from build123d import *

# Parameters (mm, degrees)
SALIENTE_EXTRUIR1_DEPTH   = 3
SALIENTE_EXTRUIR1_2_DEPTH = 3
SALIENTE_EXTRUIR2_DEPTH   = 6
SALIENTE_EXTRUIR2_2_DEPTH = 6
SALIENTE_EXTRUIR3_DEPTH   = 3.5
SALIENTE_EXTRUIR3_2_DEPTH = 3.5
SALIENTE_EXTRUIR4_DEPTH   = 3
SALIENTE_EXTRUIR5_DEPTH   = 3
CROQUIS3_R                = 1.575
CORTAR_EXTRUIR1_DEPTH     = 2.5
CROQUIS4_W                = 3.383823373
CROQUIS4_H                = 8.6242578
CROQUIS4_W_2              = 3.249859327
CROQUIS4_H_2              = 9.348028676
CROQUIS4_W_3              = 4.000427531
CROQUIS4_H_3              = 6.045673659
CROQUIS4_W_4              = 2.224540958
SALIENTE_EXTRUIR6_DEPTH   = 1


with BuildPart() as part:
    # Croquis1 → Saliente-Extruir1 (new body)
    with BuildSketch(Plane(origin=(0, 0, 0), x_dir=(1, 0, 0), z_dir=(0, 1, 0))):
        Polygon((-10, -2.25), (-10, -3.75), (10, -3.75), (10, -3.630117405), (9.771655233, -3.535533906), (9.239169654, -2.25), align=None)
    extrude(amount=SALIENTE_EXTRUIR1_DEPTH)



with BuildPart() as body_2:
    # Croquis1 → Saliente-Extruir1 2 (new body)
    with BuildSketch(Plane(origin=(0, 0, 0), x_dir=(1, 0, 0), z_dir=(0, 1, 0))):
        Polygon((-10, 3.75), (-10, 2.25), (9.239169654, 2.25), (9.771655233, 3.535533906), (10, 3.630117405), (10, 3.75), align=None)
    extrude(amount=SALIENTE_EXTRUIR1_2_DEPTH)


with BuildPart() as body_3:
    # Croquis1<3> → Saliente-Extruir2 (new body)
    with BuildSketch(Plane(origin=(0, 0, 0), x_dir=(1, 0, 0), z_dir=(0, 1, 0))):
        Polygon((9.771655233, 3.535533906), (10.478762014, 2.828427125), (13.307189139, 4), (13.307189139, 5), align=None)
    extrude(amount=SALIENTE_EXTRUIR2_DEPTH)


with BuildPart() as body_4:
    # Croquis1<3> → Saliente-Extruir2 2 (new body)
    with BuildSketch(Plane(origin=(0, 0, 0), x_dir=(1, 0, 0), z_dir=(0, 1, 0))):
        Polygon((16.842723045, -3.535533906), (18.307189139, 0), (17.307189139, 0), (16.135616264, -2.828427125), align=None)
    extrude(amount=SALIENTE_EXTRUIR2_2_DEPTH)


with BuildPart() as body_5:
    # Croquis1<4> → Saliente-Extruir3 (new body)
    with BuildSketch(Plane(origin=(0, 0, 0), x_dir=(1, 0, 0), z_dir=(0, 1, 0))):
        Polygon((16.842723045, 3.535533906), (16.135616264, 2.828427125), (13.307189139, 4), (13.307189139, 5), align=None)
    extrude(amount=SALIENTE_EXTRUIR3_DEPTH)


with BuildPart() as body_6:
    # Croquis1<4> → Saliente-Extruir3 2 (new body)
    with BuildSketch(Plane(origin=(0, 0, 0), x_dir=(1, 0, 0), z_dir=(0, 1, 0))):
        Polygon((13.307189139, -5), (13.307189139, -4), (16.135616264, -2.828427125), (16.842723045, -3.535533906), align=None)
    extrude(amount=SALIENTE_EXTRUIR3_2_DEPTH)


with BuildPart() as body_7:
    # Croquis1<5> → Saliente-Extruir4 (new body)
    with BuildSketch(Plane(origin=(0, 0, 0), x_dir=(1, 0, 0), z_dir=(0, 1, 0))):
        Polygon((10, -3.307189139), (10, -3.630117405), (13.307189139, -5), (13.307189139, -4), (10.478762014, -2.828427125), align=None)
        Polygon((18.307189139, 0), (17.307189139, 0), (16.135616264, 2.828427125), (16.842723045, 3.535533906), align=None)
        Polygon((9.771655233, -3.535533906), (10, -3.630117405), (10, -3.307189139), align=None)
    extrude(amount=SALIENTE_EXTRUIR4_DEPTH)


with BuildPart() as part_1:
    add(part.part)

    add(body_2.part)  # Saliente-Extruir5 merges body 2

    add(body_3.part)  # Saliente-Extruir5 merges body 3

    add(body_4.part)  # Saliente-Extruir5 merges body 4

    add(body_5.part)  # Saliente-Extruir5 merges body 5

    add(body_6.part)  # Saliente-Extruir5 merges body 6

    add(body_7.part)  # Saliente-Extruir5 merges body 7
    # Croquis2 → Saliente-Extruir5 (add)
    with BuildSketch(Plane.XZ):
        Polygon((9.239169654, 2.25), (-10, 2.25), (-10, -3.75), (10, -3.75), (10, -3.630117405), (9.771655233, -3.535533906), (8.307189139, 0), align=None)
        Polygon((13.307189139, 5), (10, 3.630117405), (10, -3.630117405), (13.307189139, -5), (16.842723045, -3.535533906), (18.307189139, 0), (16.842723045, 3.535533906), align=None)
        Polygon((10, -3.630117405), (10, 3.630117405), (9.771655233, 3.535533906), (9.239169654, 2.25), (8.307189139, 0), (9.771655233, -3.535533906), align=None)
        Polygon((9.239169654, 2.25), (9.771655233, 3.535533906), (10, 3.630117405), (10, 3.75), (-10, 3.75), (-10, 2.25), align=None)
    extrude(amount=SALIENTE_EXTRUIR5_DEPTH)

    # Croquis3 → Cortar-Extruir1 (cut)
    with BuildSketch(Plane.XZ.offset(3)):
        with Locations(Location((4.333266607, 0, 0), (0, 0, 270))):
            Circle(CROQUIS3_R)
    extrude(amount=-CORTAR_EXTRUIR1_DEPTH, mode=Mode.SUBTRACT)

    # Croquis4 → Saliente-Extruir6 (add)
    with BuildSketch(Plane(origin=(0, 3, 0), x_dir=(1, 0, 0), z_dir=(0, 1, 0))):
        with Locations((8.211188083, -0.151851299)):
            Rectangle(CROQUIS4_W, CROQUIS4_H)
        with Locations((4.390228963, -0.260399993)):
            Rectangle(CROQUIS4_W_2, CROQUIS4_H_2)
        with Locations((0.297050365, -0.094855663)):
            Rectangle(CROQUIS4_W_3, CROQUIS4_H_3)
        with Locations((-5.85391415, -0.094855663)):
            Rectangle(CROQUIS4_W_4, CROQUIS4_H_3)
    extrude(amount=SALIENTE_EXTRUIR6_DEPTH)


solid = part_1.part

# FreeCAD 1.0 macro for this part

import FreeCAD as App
import Part
import Sketcher
from FreeCAD import Vector
Q = App.Units.Quantity


def add_polygon(sketch, points):
    """Adds a closed chain of lines whose ends are joined by coincident constraints."""
    first, n = sketch.GeometryCount, len(points)
    for a, b in zip(points, points[1:] + points[:1]):
        sketch.addGeometry(Part.LineSegment(App.Vector(*a, 0), App.Vector(*b, 0)), False)
    for i in range(n):
        sketch.addConstraint(Sketcher.Constraint("Coincident", first + i, 2, first + (i + 1) % n, 1))

doc = App.newDocument("Part")
body = doc.addObject("PartDesign::Body", "Body")

sketch1 = body.newObject("Sketcher::SketchObject", "Sketch")
sketch1.AttachmentSupport = (doc.getObject("XZ_Plane"), [""])
sketch1.MapMode = "FlatFace"
add_polygon(sketch1, [(-10, 2.25), (-10, 3.75), (10, 3.75), (10, 3.63), (9.77, 3.54), (9.24, 2.25)])
sketch1.addConstraint([
    Sketcher.Constraint("Vertical", 0),
    Sketcher.Constraint("Horizontal", 1),
    Sketcher.Constraint("Vertical", 2),
    Sketcher.Constraint("Horizontal", 5),
    Sketcher.Constraint("DistanceX", 1, 1, 1, 2, Q("20 mm")),
    Sketcher.Constraint("DistanceY", 0, 1, 0, 2, Q("1.5 mm")),
    Sketcher.Constraint("DistanceX", 0, 2, -1, 1, Q("10 mm")),
    Sketcher.Constraint("Angle", 3, Q("-157.5 deg")),
    Sketcher.Constraint("Angle", 4, Q("-112.5 deg")),
    Sketcher.Constraint("DistanceY", -1, 1, 0, 2, Q("3.75 mm")),
    Sketcher.Constraint("DistanceX", 5, 2, 5, 1, Q("19.23917 mm")),
    Sketcher.Constraint("Distance", 3, Q("0.247159 mm")),
])
pad1 = body.newObject("PartDesign::Pad", "Pad")
pad1.Profile = sketch1
pad1.Length = 3
pad1.Reversed = True
body2 = doc.addObject("PartDesign::Body", "Body001")

sketch2 = body2.newObject("Sketcher::SketchObject", "Sketch001")
sketch2.AttachmentSupport = (doc.getObject("XZ_Plane001"), [""])
sketch2.MapMode = "FlatFace"
add_polygon(sketch2, [(-10, -3.75), (-10, -2.25), (9.24, -2.25), (9.77, -3.54), (10, -3.63), (10, -3.75)])
sketch2.addConstraint([
    Sketcher.Constraint("Vertical", 0),
    Sketcher.Constraint("Horizontal", 1),
    Sketcher.Constraint("Vertical", 4),
    Sketcher.Constraint("Horizontal", 5),
    Sketcher.Constraint("DistanceX", 5, 2, 5, 1, Q("20 mm")),
    Sketcher.Constraint("DistanceY", 0, 1, 0, 2, Q("1.5 mm")),
    Sketcher.Constraint("DistanceX", 0, 2, -1, 1, Q("10 mm")),
    Sketcher.Constraint("Angle", 2, Q("-67.5 deg")),
    Sketcher.Constraint("Angle", 3, Q("-22.5 deg")),
    Sketcher.Constraint("DistanceY", 0, 2, -1, 1, Q("2.25 mm")),
    Sketcher.Constraint("DistanceX", 1, 1, 1, 2, Q("19.23917 mm")),
    Sketcher.Constraint("Distance", 2, Q("1.391452 mm")),
])
pad2 = body2.newObject("PartDesign::Pad", "Pad001")
pad2.Profile = sketch2
pad2.Length = 3
pad2.Reversed = True
body3 = doc.addObject("PartDesign::Body", "Body002")

sketch3 = body3.newObject("Sketcher::SketchObject", "Sketch002")
sketch3.AttachmentSupport = (doc.getObject("XZ_Plane002"), [""])
sketch3.MapMode = "FlatFace"
add_polygon(sketch3, [(9.8, -3.5), (10.5, -2.8), (13.3, -4), (13.3, -5)])
sketch3.addConstraint([
    Sketcher.Constraint("Vertical", 2),
    Sketcher.Constraint("Parallel", 1, 3),
    Sketcher.Constraint("DistanceY", 2, 2, 2, 1, Q("1 mm")),
    Sketcher.Constraint("Angle", 0, Q("45 deg")),
    Sketcher.Constraint("Distance", 0, Q("1 mm")),
    Sketcher.Constraint("DistanceY", 1, 2, -1, 1, Q("4 mm")),
    Sketcher.Constraint("DistanceX", -1, 1, 1, 2, Q("13.307189 mm")),
    Sketcher.Constraint("Distance", 1, Q("3.061467 mm")),
])
pad3 = body3.newObject("PartDesign::Pad", "Pad002")
pad3.Profile = sketch3
pad3.Length = 6
pad3.Reversed = True
body4 = doc.addObject("PartDesign::Body", "Body003")

sketch4 = body4.newObject("Sketcher::SketchObject", "Sketch003")
sketch4.AttachmentSupport = (doc.getObject("XZ_Plane003"), [""])
sketch4.MapMode = "FlatFace"
add_polygon(sketch4, [(16.8, 3.5), (18.3, 0), (17.3, 0), (16.1, 2.8)])
sketch4.addConstraint([
    Sketcher.Constraint("Horizontal", 1),
    Sketcher.Constraint("PointOnObject", 0, 2, -1),
    Sketcher.Constraint("Parallel", 0, 2),
    Sketcher.Constraint("DistanceX", 1, 2, 1, 1, Q("1 mm")),
    Sketcher.Constraint("Angle", 3, Q("45 deg")),
    Sketcher.Constraint("Distance", 3, Q("1 mm")),
    Sketcher.Constraint("DistanceX", -1, 1, 0, 2, Q("18.307189 mm")),
    Sketcher.Constraint("Distance", 0, Q("3.826834 mm")),
])
pad4 = body4.newObject("PartDesign::Pad", "Pad003")
pad4.Profile = sketch4
pad4.Length = 6
pad4.Reversed = True
body5 = doc.addObject("PartDesign::Body", "Body004")

sketch5 = body5.newObject("Sketcher::SketchObject", "Sketch004")
sketch5.AttachmentSupport = (doc.getObject("XZ_Plane004"), [""])
sketch5.MapMode = "FlatFace"
add_polygon(sketch5, [(16.1, -2.8), (16.8, -3.5), (13.3, -5), (13.3, -4)])
sketch5.addConstraint([
    Sketcher.Constraint("Vertical", 2),
    Sketcher.Constraint("Parallel", 1, 3),
    Sketcher.Constraint("DistanceY", 2, 1, 2, 2, Q("1 mm")),
    Sketcher.Constraint("Angle", 0, Q("-45 deg")),
    Sketcher.Constraint("Distance", 0, Q("1 mm")),
    Sketcher.Constraint("DistanceY", 1, 2, -1, 1, Q("5 mm")),
    Sketcher.Constraint("DistanceX", -1, 1, 1, 2, Q("13.307189 mm")),
    Sketcher.Constraint("Distance", 1, Q("3.826834 mm")),
])
pad5 = body5.newObject("PartDesign::Pad", "Pad004")
pad5.Profile = sketch5
pad5.Length = 3.5
pad5.Reversed = True
body6 = doc.addObject("PartDesign::Body", "Body005")

sketch6 = body6.newObject("Sketcher::SketchObject", "Sketch005")
sketch6.AttachmentSupport = (doc.getObject("XZ_Plane005"), [""])
sketch6.MapMode = "FlatFace"
add_polygon(sketch6, [(13.3, 4), (13.3, 5), (16.8, 3.5), (16.1, 2.8)])
sketch6.addConstraint([
    Sketcher.Constraint("Vertical", 0),
    Sketcher.Constraint("Parallel", 1, 3),
    Sketcher.Constraint("DistanceY", 0, 1, 0, 2, Q("1 mm")),
    Sketcher.Constraint("Angle", 2, Q("-135 deg")),
    Sketcher.Constraint("Distance", 2, Q("1 mm")),
    Sketcher.Constraint("DistanceY", -1, 1, 0, 2, Q("5 mm")),
    Sketcher.Constraint("DistanceX", -1, 1, 0, 2, Q("13.307189 mm")),
    Sketcher.Constraint("Distance", 1, Q("3.826834 mm")),
])
pad6 = body6.newObject("PartDesign::Pad", "Pad005")
pad6.Profile = sketch6
pad6.Length = 3.5
pad6.Reversed = True
body7 = doc.addObject("PartDesign::Body", "Body006")
body7.AllowCompound = True

sketch7 = body7.newObject("Sketcher::SketchObject", "Sketch006")
sketch7.AttachmentSupport = (doc.getObject("XZ_Plane006"), [""])
sketch7.MapMode = "FlatFace"
add_polygon(sketch7, [(10, 3.63), (13.31, 5), (13.31, 4), (10.48, 2.83), (9.77, 3.54)])
add_polygon(sketch7, [(17.31, 0), (18.31, 0), (16.84, -3.54), (16.14, -2.83)])
sketch7.addConstraint([
    Sketcher.Constraint("Vertical", 1),
    Sketcher.Constraint("Horizontal", 5),
    Sketcher.Constraint("PointOnObject", 5, 2, -1),
    Sketcher.Constraint("Parallel", 0, 2),
    Sketcher.Constraint("Parallel", 2, 4),
    Sketcher.Constraint("Parallel", 3, 7),
    Sketcher.Constraint("Parallel", 6, 8),
    Sketcher.Constraint("Equal", 5, 1),
    Sketcher.Constraint("Equal", 3, 7),
    Sketcher.Constraint("Equal", 2, 8),
    Sketcher.Constraint("DistanceX", 5, 1, 5, 2, Q("1 mm")),
    Sketcher.Constraint("Angle", 3, Q("135 deg")),
    Sketcher.Constraint("Distance", 3, Q("1 mm")),
    Sketcher.Constraint("DistanceY", -1, 1, 0, 2, Q("5 mm")),
    Sketcher.Constraint("DistanceX", -1, 1, 4, 2, Q("10 mm")),
    Sketcher.Constraint("DistanceX", 1, 2, 5, 2, Q("5 mm")),
    Sketcher.Constraint("Distance", 4, Q("0.247159 mm")),
    Sketcher.Constraint("DistanceX", -1, 1, 0, 2, Q("13.307189 mm")),
])
pad7 = body7.newObject("PartDesign::Pad", "Pad006")
pad7.Profile = sketch7
pad7.Length = 3
pad7.Reversed = True
body.AllowCompound = True
doc.recompute()

boolean = body.newObject("PartDesign::Boolean", "Boolean")
boolean.Type = "Fuse"
boolean.addObjects([body2])
doc.recompute()

boolean2 = body.newObject("PartDesign::Boolean", "Boolean001")
boolean2.Type = "Fuse"
boolean2.addObjects([body3])
doc.recompute()

boolean3 = body.newObject("PartDesign::Boolean", "Boolean002")
boolean3.Type = "Fuse"
boolean3.addObjects([body4])
doc.recompute()

boolean4 = body.newObject("PartDesign::Boolean", "Boolean003")
boolean4.Type = "Fuse"
boolean4.addObjects([body5])
doc.recompute()

boolean5 = body.newObject("PartDesign::Boolean", "Boolean004")
boolean5.Type = "Fuse"
boolean5.addObjects([body6])
doc.recompute()

boolean6 = body.newObject("PartDesign::Boolean", "Boolean005")
boolean6.Type = "Fuse"
boolean6.addObjects([body7])

sketch8 = body.newObject("Sketcher::SketchObject", "Sketch007")
sketch8.AttachmentSupport = (doc.getObject("XZ_Plane"), [""])
sketch8.MapMode = "FlatFace"
add_polygon(sketch8, [(-10, -3.75), (10, -3.75), (10, -3.63), (13.31, -5), (16.84, -3.54), (18.31, 0), (16.84, 3.54), (13.31, 5), (10, 3.63), (10, 3.75), (-10, 3.75)])
sketch8.addConstraint([
    Sketcher.Constraint("Horizontal", 0),
    Sketcher.Constraint("Vertical", 1),
    Sketcher.Constraint("Vertical", 8),
    Sketcher.Constraint("Horizontal", 9),
    Sketcher.Constraint("Vertical", 10),
    Sketcher.Constraint("Symmetric", 0, 2, 9, 2, -1, 1),
    Sketcher.Constraint("Symmetric", 3, 2, 5, 2, -1),
    Sketcher.Constraint("Symmetric", 2, 2, 6, 2, -1),
    Sketcher.Constraint("Symmetric", 1, 2, 7, 2, -1),
    Sketcher.Constraint("PointOnObject", 4, 2, -1),
    Sketcher.Constraint("Perpendicular", 2, 4),
    Sketcher.Constraint("Perpendicular", 3, 5),
    Sketcher.Constraint("Equal", 3, 4),
    Sketcher.Constraint("DistanceX", 0, 1, 0, 2, Q("20 mm")),
    Sketcher.Constraint("DistanceY", 10, 2, 10, 1, Q("7.5 mm")),
    Sketcher.Constraint("DistanceY", 2, 2, -1, 1, Q("5 mm")),
    Sketcher.Constraint("Angle", 2, Q("-22.5 deg")),
    Sketcher.Constraint("DistanceY", 1, 1, 1, 2, Q("0.119883 mm")),
])
pad8 = body.newObject("PartDesign::Pad", "Pad007")
pad8.Profile = sketch8
pad8.Length = 3

sketch9 = body.newObject("Sketcher::SketchObject", "Sketch008")
sketch9.AttachmentSupport = (doc.getObject("XZ_Plane"), [""])
sketch9.MapMode = "FlatFace"
sketch9.AttachmentOffset = App.Placement(Vector(0, 0, 3), App.Rotation())
sketch9.addGeometry(Part.Circle(Vector(4.3, 0, 0), Vector(0, 0, 1), 1.6), False)
sketch9.addConstraint([
    Sketcher.Constraint("PointOnObject", 0, 3, -1),
    Sketcher.Constraint("Diameter", 0, Q("3.15 mm")),
    Sketcher.Constraint("DistanceX", -1, 1, 0, 3, Q("4.333267 mm")),
])
pocket1 = body.newObject("PartDesign::Pocket", "Pocket")
pocket1.Profile = sketch9
pocket1.Length = 2.5

sketch10 = body.newObject("Sketcher::SketchObject", "Sketch009")
sketch10.AttachmentSupport = (doc.getObject("XZ_Plane"), [""])
sketch10.MapMode = "FlatFace"
sketch10.AttachmentOffset = App.Placement(Vector(0, 0, -3), App.Rotation())
add_polygon(sketch10, [(6.5, -4.2), (6.5, 4.5), (9.9, 4.5), (9.9, -4.2)])
add_polygon(sketch10, [(2.8, -4.4), (2.8, 4.9), (6, 4.9), (6, -4.4)])
add_polygon(sketch10, [(-1.7, -2.9), (-1.7, 3.1), (2.3, 3.1), (2.3, -2.9)])
add_polygon(sketch10, [(-7, -2.9), (-7, 3.1), (-4.7, 3.1), (-4.7, -2.9)])
sketch10.addConstraint([
    Sketcher.Constraint("Vertical", 0),
    Sketcher.Constraint("Horizontal", 1),
    Sketcher.Constraint("Vertical", 2),
    Sketcher.Constraint("Horizontal", 3),
    Sketcher.Constraint("Vertical", 4),
    Sketcher.Constraint("Horizontal", 5),
    Sketcher.Constraint("Vertical", 6),
    Sketcher.Constraint("Horizontal", 7),
    Sketcher.Constraint("Vertical", 8),
    Sketcher.Constraint("Horizontal", 9),
    Sketcher.Constraint("Vertical", 10),
    Sketcher.Constraint("Horizontal", 11),
    Sketcher.Constraint("Vertical", 12),
    Sketcher.Constraint("Horizontal", 13),
    Sketcher.Constraint("Vertical", 14),
    Sketcher.Constraint("Horizontal", 15),
    Sketcher.Constraint("Horizontal", 9, 2, 12, 2),
    Sketcher.Constraint("Horizontal", 11, 2, 14, 2),
    Sketcher.Constraint("DistanceX", 5, 1, 5, 2, Q("3.249859 mm")),
    Sketcher.Constraint("DistanceX", 13, 1, 13, 2, Q("2.224541 mm")),
    Sketcher.Constraint("DistanceY", 4, 1, 4, 2, Q("9.348029 mm")),
    Sketcher.Constraint("DistanceX", -1, 1, 1, 2, Q("9.9031 mm")),
    Sketcher.Constraint("DistanceX", -1, 1, 4, 2, Q("2.765299 mm")),
    Sketcher.Constraint("DistanceX", 1, 1, 1, 2, Q("3.383823 mm")),
    Sketcher.Constraint("DistanceX", 9, 1, 9, 2, Q("4.000428 mm")),
    Sketcher.Constraint("DistanceY", 0, 1, 0, 2, Q("8.624258 mm")),
    Sketcher.Constraint("DistanceY", 8, 1, 8, 2, Q("6.045674 mm")),
    Sketcher.Constraint("DistanceY", -1, 1, 0, 2, Q("4.46398 mm")),
    Sketcher.Constraint("DistanceY", 10, 2, -1, 1, Q("2.927981 mm")),
    Sketcher.Constraint("DistanceY", 3, 2, 4, 2, Q("9.094692 mm")),
    Sketcher.Constraint("DistanceX", 8, 2, 0, 2, Q("8.22244 mm")),
    Sketcher.Constraint("DistanceX", 12, 2, 8, 2, Q("5.263021 mm")),
])
pad9 = body.newObject("PartDesign::Pad", "Pad008")
pad9.Profile = sketch10
pad9.Length = 1
pad9.Reversed = True

doc.recompute()
